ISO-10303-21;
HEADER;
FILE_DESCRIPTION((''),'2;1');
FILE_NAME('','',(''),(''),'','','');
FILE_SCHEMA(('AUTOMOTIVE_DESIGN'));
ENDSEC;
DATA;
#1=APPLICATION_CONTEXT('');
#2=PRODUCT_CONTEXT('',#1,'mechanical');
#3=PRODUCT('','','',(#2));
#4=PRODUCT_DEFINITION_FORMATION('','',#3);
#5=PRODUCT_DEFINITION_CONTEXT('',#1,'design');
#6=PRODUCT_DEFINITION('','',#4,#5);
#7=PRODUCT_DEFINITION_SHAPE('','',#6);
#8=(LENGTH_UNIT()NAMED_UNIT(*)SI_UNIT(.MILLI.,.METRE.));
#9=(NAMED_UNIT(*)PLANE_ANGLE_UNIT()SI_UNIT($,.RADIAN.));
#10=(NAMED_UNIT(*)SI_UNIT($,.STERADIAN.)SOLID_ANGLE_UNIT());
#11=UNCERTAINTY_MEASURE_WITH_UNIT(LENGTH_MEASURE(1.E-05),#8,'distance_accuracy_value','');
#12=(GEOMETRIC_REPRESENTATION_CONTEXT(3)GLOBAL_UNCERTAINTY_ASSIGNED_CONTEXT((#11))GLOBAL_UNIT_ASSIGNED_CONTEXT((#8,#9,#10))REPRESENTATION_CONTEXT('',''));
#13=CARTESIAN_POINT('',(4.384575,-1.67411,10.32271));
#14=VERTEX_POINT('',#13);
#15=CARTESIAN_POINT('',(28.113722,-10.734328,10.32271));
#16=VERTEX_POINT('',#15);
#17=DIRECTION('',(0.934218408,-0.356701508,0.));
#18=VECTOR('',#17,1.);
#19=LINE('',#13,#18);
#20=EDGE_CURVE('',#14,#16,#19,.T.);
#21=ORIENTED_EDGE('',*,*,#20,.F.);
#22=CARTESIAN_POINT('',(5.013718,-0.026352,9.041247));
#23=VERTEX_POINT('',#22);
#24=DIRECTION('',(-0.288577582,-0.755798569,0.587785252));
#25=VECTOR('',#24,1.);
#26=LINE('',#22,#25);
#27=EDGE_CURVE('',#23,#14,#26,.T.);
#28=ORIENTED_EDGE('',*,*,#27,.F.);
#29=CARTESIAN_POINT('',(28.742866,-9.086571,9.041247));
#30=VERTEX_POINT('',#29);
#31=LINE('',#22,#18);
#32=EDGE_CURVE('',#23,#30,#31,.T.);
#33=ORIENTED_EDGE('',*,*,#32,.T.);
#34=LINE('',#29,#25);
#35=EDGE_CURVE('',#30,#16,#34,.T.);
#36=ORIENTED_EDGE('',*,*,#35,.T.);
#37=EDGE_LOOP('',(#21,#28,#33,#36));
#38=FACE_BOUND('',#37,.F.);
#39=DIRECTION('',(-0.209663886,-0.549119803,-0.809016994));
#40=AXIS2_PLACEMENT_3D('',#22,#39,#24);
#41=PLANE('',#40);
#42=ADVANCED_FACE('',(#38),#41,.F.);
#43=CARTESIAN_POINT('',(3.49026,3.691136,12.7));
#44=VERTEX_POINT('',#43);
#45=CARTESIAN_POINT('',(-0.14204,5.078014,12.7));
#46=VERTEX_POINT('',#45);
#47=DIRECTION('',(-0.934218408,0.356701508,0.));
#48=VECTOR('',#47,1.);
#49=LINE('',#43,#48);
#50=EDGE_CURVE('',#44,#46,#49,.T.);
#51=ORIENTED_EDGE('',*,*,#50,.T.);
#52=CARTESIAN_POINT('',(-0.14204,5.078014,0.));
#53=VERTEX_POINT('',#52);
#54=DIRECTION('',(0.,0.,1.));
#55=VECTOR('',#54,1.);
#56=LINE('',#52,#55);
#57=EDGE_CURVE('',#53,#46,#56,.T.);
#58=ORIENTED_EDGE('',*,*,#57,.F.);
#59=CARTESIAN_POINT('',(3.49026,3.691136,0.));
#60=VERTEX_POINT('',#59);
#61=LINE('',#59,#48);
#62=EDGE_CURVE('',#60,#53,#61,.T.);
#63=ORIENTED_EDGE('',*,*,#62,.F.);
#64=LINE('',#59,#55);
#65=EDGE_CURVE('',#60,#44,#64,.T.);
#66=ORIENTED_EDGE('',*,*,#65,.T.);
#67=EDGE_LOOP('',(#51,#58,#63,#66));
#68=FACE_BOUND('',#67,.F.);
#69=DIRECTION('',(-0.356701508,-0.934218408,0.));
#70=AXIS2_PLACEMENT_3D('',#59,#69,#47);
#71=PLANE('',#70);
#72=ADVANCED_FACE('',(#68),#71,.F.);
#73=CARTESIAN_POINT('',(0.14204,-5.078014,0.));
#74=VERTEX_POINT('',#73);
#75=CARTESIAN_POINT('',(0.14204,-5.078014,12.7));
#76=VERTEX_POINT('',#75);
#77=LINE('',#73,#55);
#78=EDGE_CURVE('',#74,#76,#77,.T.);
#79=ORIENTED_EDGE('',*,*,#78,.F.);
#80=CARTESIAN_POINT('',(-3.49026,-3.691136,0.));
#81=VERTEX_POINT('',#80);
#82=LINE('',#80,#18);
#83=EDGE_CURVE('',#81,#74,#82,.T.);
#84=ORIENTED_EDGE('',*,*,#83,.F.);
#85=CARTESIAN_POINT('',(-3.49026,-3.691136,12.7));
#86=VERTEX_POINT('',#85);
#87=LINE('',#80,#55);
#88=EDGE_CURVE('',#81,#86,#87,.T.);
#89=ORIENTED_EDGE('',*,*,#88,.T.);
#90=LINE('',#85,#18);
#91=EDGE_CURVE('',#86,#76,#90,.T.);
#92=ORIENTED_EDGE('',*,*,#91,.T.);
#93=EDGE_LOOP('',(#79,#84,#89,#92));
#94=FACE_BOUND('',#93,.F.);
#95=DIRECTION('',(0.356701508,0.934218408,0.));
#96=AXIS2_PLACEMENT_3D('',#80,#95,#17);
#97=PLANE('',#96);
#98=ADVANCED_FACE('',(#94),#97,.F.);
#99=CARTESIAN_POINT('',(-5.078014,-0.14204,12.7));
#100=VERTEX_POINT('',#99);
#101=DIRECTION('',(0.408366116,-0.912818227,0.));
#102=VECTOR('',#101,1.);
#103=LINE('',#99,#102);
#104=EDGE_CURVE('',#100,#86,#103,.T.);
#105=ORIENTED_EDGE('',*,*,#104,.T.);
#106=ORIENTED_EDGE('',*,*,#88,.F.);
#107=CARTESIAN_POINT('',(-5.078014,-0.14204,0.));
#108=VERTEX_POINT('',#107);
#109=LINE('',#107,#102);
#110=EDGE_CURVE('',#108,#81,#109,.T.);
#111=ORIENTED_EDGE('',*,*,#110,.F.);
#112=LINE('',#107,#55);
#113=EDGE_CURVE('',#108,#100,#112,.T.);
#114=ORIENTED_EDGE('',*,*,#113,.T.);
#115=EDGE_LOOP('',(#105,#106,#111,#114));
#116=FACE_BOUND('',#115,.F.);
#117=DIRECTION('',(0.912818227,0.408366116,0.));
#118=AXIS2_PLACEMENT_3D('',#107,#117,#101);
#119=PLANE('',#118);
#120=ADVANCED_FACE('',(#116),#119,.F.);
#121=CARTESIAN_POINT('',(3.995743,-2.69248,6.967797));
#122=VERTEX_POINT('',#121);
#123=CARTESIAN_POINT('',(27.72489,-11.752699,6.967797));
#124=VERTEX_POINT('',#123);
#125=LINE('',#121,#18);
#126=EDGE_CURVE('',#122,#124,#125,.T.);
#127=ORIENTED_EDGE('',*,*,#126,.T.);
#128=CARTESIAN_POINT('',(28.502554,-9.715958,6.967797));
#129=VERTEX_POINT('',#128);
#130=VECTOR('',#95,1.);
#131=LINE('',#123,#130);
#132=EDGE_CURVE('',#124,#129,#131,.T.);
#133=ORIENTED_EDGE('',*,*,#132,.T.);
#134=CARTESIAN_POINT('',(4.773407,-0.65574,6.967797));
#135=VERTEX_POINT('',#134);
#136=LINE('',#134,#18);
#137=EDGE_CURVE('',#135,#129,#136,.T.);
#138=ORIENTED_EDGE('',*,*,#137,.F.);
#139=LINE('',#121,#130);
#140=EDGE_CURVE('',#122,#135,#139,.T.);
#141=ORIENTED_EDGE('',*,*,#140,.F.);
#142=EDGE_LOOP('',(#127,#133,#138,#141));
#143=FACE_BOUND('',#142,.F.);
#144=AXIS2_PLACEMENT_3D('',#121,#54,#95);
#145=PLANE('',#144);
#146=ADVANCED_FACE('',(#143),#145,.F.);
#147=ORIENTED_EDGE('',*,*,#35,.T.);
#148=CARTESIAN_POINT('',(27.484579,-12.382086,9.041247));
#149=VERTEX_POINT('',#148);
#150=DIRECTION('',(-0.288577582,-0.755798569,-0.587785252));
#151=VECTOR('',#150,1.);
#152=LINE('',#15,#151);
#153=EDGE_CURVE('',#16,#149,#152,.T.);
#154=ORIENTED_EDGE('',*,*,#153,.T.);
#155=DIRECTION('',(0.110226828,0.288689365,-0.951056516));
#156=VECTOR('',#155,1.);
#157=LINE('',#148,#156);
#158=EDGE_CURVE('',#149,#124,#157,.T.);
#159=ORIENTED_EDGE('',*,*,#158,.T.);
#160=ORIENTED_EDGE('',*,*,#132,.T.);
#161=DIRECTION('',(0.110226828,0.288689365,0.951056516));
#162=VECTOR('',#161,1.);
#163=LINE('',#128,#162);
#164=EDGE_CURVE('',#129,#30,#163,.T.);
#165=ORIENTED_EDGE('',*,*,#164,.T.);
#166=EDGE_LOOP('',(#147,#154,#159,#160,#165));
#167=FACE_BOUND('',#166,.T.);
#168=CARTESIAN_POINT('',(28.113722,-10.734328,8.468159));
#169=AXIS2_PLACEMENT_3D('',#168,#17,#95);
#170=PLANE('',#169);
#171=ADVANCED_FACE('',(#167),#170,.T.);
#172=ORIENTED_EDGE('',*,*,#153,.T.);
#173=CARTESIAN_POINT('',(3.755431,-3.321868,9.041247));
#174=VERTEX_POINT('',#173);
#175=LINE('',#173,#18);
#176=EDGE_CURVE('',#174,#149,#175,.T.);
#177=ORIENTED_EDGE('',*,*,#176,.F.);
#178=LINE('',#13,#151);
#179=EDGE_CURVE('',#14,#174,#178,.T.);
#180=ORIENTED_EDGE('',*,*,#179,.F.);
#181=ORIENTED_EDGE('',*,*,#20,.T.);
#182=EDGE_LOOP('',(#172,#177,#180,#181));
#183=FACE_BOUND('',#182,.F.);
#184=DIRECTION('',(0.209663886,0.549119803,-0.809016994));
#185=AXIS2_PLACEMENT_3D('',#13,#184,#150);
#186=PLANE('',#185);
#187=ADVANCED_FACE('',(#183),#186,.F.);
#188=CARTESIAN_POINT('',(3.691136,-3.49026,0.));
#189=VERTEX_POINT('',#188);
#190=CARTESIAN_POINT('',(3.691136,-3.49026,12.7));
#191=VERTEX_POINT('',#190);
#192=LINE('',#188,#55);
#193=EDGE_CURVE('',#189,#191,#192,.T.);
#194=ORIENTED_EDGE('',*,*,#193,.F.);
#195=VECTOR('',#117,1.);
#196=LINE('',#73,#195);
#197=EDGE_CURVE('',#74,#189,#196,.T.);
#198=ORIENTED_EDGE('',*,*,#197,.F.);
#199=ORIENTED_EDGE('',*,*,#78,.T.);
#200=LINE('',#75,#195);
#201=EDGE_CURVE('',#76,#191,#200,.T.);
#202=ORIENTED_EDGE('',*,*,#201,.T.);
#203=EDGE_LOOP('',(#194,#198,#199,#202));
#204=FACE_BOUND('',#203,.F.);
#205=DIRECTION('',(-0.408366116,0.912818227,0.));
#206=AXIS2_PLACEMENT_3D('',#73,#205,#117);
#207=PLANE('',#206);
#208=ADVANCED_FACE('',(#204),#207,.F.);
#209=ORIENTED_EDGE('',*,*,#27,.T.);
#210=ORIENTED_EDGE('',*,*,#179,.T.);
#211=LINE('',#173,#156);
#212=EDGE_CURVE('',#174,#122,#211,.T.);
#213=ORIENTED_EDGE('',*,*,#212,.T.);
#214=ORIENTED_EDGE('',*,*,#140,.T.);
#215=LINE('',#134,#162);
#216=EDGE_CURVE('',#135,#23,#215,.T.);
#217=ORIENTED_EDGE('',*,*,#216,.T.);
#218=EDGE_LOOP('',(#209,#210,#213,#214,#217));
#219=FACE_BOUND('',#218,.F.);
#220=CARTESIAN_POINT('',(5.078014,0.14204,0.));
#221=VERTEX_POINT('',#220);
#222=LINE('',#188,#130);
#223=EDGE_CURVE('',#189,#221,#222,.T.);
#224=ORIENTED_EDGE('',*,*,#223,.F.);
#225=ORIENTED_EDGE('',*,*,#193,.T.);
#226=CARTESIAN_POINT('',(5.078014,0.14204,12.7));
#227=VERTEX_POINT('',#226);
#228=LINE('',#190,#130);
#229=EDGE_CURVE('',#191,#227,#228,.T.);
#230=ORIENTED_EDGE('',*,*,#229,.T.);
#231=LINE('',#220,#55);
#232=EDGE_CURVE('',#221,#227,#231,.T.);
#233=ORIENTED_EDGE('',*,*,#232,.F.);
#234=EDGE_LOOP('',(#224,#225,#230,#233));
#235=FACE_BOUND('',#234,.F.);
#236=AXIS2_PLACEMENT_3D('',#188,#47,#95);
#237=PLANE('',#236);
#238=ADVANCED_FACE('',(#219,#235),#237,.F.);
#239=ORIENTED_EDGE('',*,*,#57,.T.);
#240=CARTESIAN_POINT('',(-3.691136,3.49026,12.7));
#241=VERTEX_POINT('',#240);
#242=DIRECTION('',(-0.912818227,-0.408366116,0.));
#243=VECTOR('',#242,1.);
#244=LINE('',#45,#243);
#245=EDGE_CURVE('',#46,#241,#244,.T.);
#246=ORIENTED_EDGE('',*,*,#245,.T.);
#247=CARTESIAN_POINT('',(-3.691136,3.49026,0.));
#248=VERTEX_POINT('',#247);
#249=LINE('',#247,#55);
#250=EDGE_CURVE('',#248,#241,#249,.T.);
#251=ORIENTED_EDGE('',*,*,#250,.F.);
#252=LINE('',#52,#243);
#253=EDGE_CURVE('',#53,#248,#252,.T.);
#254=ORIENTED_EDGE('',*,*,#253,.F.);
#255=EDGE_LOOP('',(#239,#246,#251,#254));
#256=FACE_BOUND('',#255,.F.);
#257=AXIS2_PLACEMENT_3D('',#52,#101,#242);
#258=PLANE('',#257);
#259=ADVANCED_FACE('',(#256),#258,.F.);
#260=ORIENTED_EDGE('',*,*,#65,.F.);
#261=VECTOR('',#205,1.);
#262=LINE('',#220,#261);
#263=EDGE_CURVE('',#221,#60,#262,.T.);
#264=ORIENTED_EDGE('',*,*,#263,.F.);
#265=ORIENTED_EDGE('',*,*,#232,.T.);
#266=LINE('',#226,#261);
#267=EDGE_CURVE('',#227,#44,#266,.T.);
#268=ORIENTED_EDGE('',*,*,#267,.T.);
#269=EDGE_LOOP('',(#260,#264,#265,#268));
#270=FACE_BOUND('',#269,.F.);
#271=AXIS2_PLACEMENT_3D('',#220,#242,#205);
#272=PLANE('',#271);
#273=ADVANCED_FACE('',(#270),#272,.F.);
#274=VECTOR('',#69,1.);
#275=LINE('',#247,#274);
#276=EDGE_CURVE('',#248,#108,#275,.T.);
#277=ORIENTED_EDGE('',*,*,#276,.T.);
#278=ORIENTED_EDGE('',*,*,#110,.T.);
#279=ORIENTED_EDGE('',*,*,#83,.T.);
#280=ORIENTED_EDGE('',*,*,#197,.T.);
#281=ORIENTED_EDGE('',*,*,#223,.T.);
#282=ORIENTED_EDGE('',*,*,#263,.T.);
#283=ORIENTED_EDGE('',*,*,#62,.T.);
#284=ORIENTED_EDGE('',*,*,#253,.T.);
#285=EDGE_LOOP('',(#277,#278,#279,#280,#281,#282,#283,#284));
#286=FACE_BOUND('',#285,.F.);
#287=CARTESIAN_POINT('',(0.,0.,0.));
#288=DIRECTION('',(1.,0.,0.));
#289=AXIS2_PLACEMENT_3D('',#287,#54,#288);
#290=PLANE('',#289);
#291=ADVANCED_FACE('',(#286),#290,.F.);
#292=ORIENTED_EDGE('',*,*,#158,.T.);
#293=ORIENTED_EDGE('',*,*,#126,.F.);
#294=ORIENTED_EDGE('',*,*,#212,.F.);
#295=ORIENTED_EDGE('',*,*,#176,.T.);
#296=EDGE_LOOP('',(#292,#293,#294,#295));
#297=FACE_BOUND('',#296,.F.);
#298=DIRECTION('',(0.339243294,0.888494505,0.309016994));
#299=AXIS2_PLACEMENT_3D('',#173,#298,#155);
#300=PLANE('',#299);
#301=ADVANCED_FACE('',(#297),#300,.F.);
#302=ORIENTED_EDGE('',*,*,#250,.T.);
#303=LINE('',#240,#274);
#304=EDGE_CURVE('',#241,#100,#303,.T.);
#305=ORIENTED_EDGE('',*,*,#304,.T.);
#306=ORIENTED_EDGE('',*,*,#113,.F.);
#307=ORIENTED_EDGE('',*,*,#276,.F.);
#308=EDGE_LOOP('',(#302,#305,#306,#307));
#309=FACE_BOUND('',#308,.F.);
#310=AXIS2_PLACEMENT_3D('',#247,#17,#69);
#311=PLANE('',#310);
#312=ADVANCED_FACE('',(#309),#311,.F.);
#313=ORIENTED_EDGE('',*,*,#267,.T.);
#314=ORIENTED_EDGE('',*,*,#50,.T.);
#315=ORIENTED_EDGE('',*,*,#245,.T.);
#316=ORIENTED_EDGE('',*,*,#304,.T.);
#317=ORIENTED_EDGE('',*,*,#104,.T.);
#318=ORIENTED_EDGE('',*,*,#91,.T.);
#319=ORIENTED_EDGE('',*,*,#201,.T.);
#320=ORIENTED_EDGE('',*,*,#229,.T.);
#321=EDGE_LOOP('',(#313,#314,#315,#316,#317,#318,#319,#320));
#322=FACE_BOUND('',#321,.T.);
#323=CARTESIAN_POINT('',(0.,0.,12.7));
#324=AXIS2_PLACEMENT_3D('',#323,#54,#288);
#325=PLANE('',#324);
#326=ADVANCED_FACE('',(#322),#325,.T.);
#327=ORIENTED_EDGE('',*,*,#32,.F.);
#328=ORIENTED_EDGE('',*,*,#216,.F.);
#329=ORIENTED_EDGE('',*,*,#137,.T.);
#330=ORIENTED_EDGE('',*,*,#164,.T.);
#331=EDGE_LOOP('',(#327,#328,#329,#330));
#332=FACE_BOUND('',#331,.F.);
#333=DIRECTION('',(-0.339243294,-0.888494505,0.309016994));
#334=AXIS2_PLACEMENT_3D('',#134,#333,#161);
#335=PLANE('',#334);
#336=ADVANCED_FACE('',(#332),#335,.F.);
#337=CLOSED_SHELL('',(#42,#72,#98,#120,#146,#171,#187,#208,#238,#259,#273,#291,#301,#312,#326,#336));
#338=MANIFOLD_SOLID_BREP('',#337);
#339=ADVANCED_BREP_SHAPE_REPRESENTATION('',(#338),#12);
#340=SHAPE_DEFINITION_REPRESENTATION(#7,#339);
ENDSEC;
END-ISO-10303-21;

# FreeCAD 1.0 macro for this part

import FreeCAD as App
import Part
import Sketcher
Q = App.Units.Quantity


def add_polygon(sketch, points):
    """Adds a closed chain of lines whose ends are joined by coincident constraints."""
    first, n = sketch.GeometryCount, len(points)
    for a, b in zip(points, points[1:] + points[:1]):
        sketch.addGeometry(Part.LineSegment(App.Vector(*a, 0), App.Vector(*b, 0)), False)
    for i in range(n):
        sketch.addConstraint(Sketcher.Constraint("Coincident", first + i, 2, first + (i + 1) % n, 1))

doc = App.newDocument("Part")
body = doc.addObject("PartDesign::Body", "Body")

# Sketch on XY plane
sketch1 = body.newObject("Sketcher::SketchObject", "Sketch")
sketch1.AttachmentSupport = (doc.getObject("XY_Plane"), [""])
sketch1.MapMode = "FlatFace"
add_polygon(sketch1, [(-5.1, -0.1), (-3.5, -3.7), (0.1, -5.1), (3.7, -3.5), (5.1, 0.1), (3.5, 3.7), (-0.1, 5.1), (-3.7, 3.5)])  # lines 0-7
sketch1.addConstraint([
    Sketcher.Constraint("Symmetric", 0, 2, 4, 2, -1, 1),
    Sketcher.Constraint("Symmetric", 1, 2, 5, 2, -1, 1),
    Sketcher.Constraint("Symmetric", 2, 2, 6, 2, -1, 1),
    Sketcher.Constraint("Symmetric", 3, 2, 7, 2, -1, 1),
    Sketcher.Constraint("Perpendicular", 0, 2),
    Sketcher.Constraint("Perpendicular", 1, 3),
    Sketcher.Constraint("Equal", 0, 1),
    Sketcher.Constraint("Equal", 1, 2),
    Sketcher.Constraint("Equal", 2, 3),
    Sketcher.Constraint("DistanceX", 0, 2, 1, 2, 3.632301),
    Sketcher.Constraint("DistanceX", 0, 2, -1, 1, 3.49026),
    Sketcher.Constraint("DistanceY", 1, 2, 0, 2, 1.386878),
])
pad1 = body.newObject("PartDesign::Pad", "Pad")
pad1.Profile = sketch1
pad1.Length = Q("0.5 in")

# Sketch on an angled plane
sketch2 = body.newObject("Sketcher::SketchObject", "Sketch001")
sketch2.Placement = App.Placement(App.Vector(4.384575, -1.67411, 0), App.Rotation(App.Vector(0.356701508, 0.934218408, 0), App.Vector(0, 0, 1), App.Vector(0.934218408, -0.356701508, 0), "ZXY"))
add_polygon(sketch2, [(-1.1, 7), (1.1, 7), (1.8, 9), (0, 10.3), (-1.8, 9)])  # lines 0-4
sketch2.addConstraint([
    Sketcher.Constraint("Horizontal", 0),
    Sketcher.Constraint("Symmetric", 1, 2, 3, 2, -2),
    Sketcher.Constraint("PointOnObject", 2, 2, -2),
    Sketcher.Constraint("Equal", 1, 2),
    Sketcher.Constraint("Equal", 3, 4),
    Sketcher.Constraint("Angle", 1, Q("72 deg")),
    Sketcher.Constraint("Angle", 2, Q("144 deg")),
    Sketcher.Constraint("DistanceX", 0, 1, 0, 2, 2.180154),
    Sketcher.Constraint("DistanceY", -1, 1, 2, 2, 10.32271),
])
pad2 = body.newObject("PartDesign::Pad", "Pad001")
pad2.Profile = sketch2
pad2.Length = Q("1 in")

doc.recompute()
